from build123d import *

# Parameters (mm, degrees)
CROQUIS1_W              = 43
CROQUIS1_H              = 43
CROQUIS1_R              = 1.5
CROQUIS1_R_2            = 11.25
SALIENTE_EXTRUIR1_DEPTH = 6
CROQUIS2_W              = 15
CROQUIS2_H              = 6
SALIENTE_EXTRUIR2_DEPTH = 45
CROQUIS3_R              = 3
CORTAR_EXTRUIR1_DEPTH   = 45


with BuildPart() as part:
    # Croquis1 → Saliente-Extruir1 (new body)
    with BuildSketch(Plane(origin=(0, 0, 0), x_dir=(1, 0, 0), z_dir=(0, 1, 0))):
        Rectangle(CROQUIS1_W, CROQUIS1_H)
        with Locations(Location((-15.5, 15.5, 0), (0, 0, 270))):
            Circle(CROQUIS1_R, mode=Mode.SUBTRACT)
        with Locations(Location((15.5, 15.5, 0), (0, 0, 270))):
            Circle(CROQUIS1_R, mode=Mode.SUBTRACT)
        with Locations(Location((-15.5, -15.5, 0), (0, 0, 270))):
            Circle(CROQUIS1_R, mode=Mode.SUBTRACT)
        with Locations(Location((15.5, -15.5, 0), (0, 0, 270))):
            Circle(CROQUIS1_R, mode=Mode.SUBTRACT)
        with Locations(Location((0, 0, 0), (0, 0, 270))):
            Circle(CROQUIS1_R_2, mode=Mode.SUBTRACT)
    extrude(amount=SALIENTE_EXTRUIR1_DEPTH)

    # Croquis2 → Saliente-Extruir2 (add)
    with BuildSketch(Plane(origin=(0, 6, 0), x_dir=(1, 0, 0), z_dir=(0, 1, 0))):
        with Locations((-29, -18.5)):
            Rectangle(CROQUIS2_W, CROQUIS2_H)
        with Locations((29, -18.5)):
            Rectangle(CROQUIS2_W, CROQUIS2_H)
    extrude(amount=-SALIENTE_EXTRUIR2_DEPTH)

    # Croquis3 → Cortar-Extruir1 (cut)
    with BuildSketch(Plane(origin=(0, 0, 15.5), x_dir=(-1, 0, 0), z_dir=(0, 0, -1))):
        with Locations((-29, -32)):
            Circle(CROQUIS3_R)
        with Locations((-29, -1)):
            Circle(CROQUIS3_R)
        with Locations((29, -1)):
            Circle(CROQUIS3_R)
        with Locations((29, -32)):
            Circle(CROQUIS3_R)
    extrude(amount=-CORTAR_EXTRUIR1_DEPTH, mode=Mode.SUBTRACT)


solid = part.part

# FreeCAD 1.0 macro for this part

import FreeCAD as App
import Part
import Sketcher
from FreeCAD import Vector
Q = App.Units.Quantity

doc = App.newDocument("Part")
body = doc.addObject("PartDesign::Body", "Body")

sketch1 = body.newObject("Sketcher::SketchObject", "Sketch")
sketch1.AttachmentSupport = (doc.getObject("XZ_Plane"), [""])
sketch1.MapMode = "FlatFace"
sketch1.addGeometry([
    Part.LineSegment(Vector(-21.5, -21.5, 0), Vector(-21.5, 21.5, 0)),
    Part.LineSegment(Vector(-21.5, 21.5, 0), Vector(21.5, 21.5, 0)),
    Part.LineSegment(Vector(21.5, 21.5, 0), Vector(21.5, -21.5, 0)),
    Part.LineSegment(Vector(21.5, -21.5, 0), Vector(-21.5, -21.5, 0)),
    Part.Circle(Vector(-15.5, 15.5, 0), Vector(0, 0, 1), 1.5),
    Part.Circle(Vector(15.5, 15.5, 0), Vector(0, 0, 1), 1.5),
    Part.Circle(Vector(-15.5, -15.5, 0), Vector(0, 0, 1), 1.5),
    Part.Circle(Vector(0, 0, 0), Vector(0, 0, 1), 11.2),
    Part.Circle(Vector(15.5, -15.5, 0), Vector(0, 0, 1), 1.5),
], False)
sketch1.addConstraint([
    Sketcher.Constraint("Coincident", 0, 2, 1, 1),
    Sketcher.Constraint("Coincident", 1, 2, 2, 1),
    Sketcher.Constraint("Coincident", 2, 2, 3, 1),
    Sketcher.Constraint("Coincident", 3, 2, 0, 1),
    Sketcher.Constraint("Vertical", 0),
    Sketcher.Constraint("Horizontal", 1),
    Sketcher.Constraint("Vertical", 2),
    Sketcher.Constraint("Horizontal", 3),
    Sketcher.Constraint("Coincident", 7, 3, -1, 1),
    Sketcher.Constraint("Equal", 4, 5),
    Sketcher.Constraint("Equal", 5, 6),
    Sketcher.Constraint("Equal", 6, 8),
    Sketcher.Constraint("Symmetric", 5, 3, 6, 3, -1, 1),
    Sketcher.Constraint("Symmetric", 4, 3, 8, 3, -1, 1),
    Sketcher.Constraint("Symmetric", 0, 2, 2, 2, -1, 1),
    Sketcher.Constraint("Symmetric", 4, 3, 5, 3, -2),
    Sketcher.Constraint("Equal", 3, 0),
    Sketcher.Constraint("Diameter", 4, Q("3 mm")),
    Sketcher.Constraint("Diameter", 7, Q("22.5 mm")),
    Sketcher.Constraint("DistanceX", 1, 1, 1, 2, Q("43 mm")),
    Sketcher.Constraint("DistanceX", 4, 3, 5, 3, Q("31 mm")),
    Sketcher.Constraint("DistanceY", 6, 3, 4, 3, Q("31 mm")),
])
pad1 = body.newObject("PartDesign::Pad", "Pad")
pad1.Profile = sketch1
pad1.Length = 6
pad1.Reversed = True

sketch2 = body.newObject("Sketcher::SketchObject", "Sketch001")
sketch2.AttachmentSupport = (doc.getObject("XZ_Plane"), [""])
sketch2.MapMode = "FlatFace"
sketch2.AttachmentOffset = App.Placement(Vector(0, 0, -6), App.Rotation())
sketch2.addGeometry([
    Part.LineSegment(Vector(-36, 16, 0), Vector(-36, 22, 0)),
    Part.LineSegment(Vector(-36, 22, 0), Vector(-22, 22, 0)),
    Part.LineSegment(Vector(-22, 22, 0), Vector(-22, 16, 0)),
    Part.LineSegment(Vector(-22, 16, 0), Vector(-36, 16, 0)),
    Part.LineSegment(Vector(22, 16, 0), Vector(22, 22, 0)),
    Part.LineSegment(Vector(22, 22, 0), Vector(36, 22, 0)),
    Part.LineSegment(Vector(36, 22, 0), Vector(36, 16, 0)),
    Part.LineSegment(Vector(36, 16, 0), Vector(22, 16, 0)),
], False)
sketch2.addConstraint([
    Sketcher.Constraint("Coincident", 0, 2, 1, 1),
    Sketcher.Constraint("Coincident", 1, 2, 2, 1),
    Sketcher.Constraint("Coincident", 2, 2, 3, 1),
    Sketcher.Constraint("Coincident", 3, 2, 0, 1),
    Sketcher.Constraint("Coincident", 4, 2, 5, 1),
    Sketcher.Constraint("Coincident", 5, 2, 6, 1),
    Sketcher.Constraint("Coincident", 6, 2, 7, 1),
    Sketcher.Constraint("Coincident", 7, 2, 4, 1),
    Sketcher.Constraint("Vertical", 0),
    Sketcher.Constraint("Horizontal", 1),
    Sketcher.Constraint("Vertical", 2),
    Sketcher.Constraint("Horizontal", 3),
    Sketcher.Constraint("Vertical", 4),
    Sketcher.Constraint("Horizontal", 5),
    Sketcher.Constraint("Vertical", 6),
    Sketcher.Constraint("Horizontal", 7),
    Sketcher.Constraint("Symmetric", 1, 2, 4, 2, -2),
    Sketcher.Constraint("Symmetric", 3, 2, 6, 2, -2),
    Sketcher.Constraint("DistanceX", 1, 1, 1, 2, Q("15 mm")),
    Sketcher.Constraint("DistanceY", 0, 1, 0, 2, Q("6 mm")),
    Sketcher.Constraint("DistanceX", 1, 2, 4, 2, Q("43 mm")),
    Sketcher.Constraint("DistanceY", -1, 1, 0, 2, Q("21.5 mm")),
])
pad2 = body.newObject("PartDesign::Pad", "Pad001")
pad2.Profile = sketch2
pad2.Length = 45

sketch3 = body.newObject("Sketcher::SketchObject", "Sketch002")
sketch3.AttachmentSupport = (doc.getObject("XY_Plane"), [""])
sketch3.MapMode = "FlatFace"
sketch3.AttachmentOffset = App.Placement(Vector(0, 0, 15.5), App.Rotation())
sketch3.addGeometry([
    Part.Circle(Vector(29, -32, 0), Vector(0, 0, 1), 3),
    Part.Circle(Vector(29, -1, 0), Vector(0, 0, 1), 3),
    Part.Circle(Vector(-29, -1, 0), Vector(0, 0, 1), 3),
    Part.Circle(Vector(-29, -32, 0), Vector(0, 0, 1), 3),
], False)
sketch3.addConstraint([
    Sketcher.Constraint("Equal", 0, 1),
    Sketcher.Constraint("Equal", 1, 2),
    Sketcher.Constraint("Equal", 2, 3),
    Sketcher.Constraint("Symmetric", 1, 3, 2, 3, -2),
    Sketcher.Constraint("Symmetric", 0, 3, 3, 3, -2),
    Sketcher.Constraint("Vertical", 0, 3, 1, 3),
    Sketcher.Constraint("Diameter", 0, Q("6 mm")),
    Sketcher.Constraint("DistanceX", -1, 1, 0, 3, Q("29 mm")),
    Sketcher.Constraint("DistanceY", 0, 3, -1, 1, Q("32 mm")),
    Sketcher.Constraint("DistanceY", 1, 3, -1, 1, Q("1 mm")),
])
pocket1 = body.newObject("PartDesign::Pocket", "Pocket")
pocket1.Profile = sketch3
pocket1.Length = 45
pocket1.Reversed = True

doc.recompute()
